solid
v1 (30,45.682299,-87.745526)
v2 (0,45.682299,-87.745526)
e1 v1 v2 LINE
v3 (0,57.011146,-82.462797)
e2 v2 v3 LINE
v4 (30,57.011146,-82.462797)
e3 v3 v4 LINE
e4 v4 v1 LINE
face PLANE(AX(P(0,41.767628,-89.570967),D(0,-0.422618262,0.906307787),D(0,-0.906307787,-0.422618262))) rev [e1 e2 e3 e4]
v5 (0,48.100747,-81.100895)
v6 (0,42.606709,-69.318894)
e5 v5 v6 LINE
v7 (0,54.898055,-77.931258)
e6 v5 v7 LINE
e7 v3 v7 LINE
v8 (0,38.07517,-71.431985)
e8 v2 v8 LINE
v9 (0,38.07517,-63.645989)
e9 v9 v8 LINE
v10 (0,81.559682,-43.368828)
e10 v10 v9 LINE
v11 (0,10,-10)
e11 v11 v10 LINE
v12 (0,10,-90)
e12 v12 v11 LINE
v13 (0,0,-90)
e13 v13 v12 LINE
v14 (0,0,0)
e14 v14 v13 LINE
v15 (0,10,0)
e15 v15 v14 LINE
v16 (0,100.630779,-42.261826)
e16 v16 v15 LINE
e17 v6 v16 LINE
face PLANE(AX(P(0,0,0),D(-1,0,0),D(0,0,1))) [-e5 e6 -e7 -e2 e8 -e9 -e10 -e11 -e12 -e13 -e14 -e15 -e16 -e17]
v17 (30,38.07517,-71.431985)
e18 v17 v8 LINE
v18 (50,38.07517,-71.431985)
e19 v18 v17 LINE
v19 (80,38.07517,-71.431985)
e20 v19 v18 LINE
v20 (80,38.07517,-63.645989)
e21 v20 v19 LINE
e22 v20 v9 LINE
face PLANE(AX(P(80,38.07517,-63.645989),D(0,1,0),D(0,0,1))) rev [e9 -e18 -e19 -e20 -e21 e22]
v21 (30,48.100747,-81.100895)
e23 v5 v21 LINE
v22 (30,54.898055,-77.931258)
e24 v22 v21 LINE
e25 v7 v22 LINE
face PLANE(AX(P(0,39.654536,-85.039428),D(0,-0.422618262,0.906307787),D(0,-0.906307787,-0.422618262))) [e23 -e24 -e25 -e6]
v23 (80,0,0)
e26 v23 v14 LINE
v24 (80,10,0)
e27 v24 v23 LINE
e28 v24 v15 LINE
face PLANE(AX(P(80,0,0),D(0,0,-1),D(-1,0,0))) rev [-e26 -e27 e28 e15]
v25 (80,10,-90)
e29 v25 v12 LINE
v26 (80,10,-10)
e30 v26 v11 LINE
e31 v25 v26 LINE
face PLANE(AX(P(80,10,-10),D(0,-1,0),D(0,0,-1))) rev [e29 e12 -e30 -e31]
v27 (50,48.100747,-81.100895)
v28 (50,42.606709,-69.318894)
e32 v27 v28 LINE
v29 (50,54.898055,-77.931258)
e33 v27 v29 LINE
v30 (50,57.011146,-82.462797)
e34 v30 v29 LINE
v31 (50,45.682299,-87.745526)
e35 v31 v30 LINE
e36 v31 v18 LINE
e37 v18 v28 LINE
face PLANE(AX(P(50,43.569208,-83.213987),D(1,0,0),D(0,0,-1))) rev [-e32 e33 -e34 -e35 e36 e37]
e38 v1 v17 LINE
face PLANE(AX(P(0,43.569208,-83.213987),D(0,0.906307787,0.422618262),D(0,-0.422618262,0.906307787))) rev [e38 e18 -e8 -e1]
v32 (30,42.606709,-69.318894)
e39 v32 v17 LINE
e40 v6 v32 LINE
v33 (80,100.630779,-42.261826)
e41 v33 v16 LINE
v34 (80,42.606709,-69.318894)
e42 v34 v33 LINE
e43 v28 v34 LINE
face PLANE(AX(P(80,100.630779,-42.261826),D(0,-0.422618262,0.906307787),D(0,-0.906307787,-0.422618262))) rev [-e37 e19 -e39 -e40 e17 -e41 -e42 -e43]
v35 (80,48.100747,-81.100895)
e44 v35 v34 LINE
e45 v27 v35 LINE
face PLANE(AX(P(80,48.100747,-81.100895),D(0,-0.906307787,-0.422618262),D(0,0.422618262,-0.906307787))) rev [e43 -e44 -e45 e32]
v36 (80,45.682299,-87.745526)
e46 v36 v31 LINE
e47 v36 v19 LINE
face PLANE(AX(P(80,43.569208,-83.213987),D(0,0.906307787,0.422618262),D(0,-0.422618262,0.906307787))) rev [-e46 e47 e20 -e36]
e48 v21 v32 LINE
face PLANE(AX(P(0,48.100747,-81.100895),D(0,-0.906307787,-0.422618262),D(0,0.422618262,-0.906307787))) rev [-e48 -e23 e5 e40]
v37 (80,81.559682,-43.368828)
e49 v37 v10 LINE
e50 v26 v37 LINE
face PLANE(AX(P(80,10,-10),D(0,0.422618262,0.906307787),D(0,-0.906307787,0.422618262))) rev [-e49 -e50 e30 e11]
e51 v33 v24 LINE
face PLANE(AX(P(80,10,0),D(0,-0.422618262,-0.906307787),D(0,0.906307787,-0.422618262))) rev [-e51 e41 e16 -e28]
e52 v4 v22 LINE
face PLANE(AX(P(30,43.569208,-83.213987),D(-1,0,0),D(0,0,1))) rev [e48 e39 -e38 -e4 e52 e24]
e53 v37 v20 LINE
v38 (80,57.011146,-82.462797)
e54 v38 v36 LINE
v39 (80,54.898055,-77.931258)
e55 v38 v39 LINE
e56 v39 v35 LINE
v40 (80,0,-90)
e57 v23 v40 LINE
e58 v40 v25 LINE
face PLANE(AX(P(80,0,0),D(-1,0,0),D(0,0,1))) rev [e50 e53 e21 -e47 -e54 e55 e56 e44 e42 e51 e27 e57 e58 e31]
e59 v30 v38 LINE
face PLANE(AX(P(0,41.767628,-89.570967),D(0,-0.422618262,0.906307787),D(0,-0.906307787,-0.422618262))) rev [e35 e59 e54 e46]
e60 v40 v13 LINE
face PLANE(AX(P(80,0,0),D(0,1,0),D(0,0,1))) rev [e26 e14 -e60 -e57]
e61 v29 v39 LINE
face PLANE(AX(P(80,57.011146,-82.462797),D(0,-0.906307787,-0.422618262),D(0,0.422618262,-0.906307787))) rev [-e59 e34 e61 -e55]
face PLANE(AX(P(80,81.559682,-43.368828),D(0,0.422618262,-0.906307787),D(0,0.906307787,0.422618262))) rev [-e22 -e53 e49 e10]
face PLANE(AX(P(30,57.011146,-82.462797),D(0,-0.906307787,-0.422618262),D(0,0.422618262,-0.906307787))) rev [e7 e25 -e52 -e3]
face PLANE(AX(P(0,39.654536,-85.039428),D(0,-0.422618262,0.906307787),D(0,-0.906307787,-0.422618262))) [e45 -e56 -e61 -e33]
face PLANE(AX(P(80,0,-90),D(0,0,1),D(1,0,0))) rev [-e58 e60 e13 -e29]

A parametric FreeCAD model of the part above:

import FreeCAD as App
import Part
import Sketcher
Q = App.Units.Quantity


def add_polygon(sketch, points):
    """Adds a closed chain of lines whose ends are joined by coincident constraints."""
    first, n = sketch.GeometryCount, len(points)
    for a, b in zip(points, points[1:] + points[:1]):
        sketch.addGeometry(Part.LineSegment(App.Vector(*a, 0), App.Vector(*b, 0)), False)
    for i in range(n):
        sketch.addConstraint(Sketcher.Constraint("Coincident", first + i, 2, first + (i + 1) % n, 1))

doc = App.newDocument("Part")
params = doc.addObject("Spreadsheet::Sheet", "Params")
for row, (alias, value) in enumerate([
    ("sketch1_width", "10 mm"),
    ("sketch1_height", "90 mm"),
    ("sketch1_height2", "80 mm"),
    ("sketch1_length", "100 mm"),
    ("sketch1_length2", "60 mm"),
    ("pad1_length", "80 mm"),
    ("sketch2_width", "30 mm"),
    ("sketch2_height", "5 mm"),
    ("pad2_length", "13 mm"),
    ("sketch3_width", "30 mm"),
    ("sketch3_height", "12.5 mm"),
    ("pad3_length", "5 mm"),
], start=1):
    params.set(f"A{row}", alias)
    params.set(f"B{row}", "=" + value)
    params.setAlias(f"B{row}", alias)

body = doc.addObject("PartDesign::Body", "Body")

sketch1 = body.newObject("Sketcher::SketchObject", "Sketch")
sketch1.AttachmentSupport = (doc.getObject("YZ_Plane"), [""])
sketch1.MapMode = "FlatFace"
add_polygon(sketch1, [(100.630779, -42.261826), (10, 0), (0, 0), (0, -90), (10, -90), (10, -10), (81.559682, -43.368828), (38.07517, -63.645989), (38.07517, -71.431985), (92.453637, -46.07489)])
sketch1.addConstraint([
    Sketcher.Constraint("Horizontal", 1),
    Sketcher.Constraint("Vertical", 2),
    Sketcher.Constraint("Horizontal", 3),
    Sketcher.Constraint("Vertical", 4),
    Sketcher.Constraint("Vertical", 7),
    Sketcher.Constraint("Coincident", 1, 2, -1, 1),
    Sketcher.Constraint("Parallel", 0, 5),
    Sketcher.Constraint("Parallel", 6, 8),
    Sketcher.Constraint("Parallel", 8, 9),
    Sketcher.Constraint("Vertical", 0, 2, 3, 2),
    Sketcher.Constraint("DistanceX", 1, 2, 1, 1, Q("10 mm")),
    Sketcher.Constraint("DistanceY", 2, 2, 2, 1, Q("90 mm")),
    Sketcher.Constraint("DistanceY", 4, 1, 4, 2, Q("80 mm")),
    Sketcher.Constraint("Angle", 0, Q("155 deg")),
    Sketcher.Constraint("Angle", 6, Q("-155 deg")),
    Sketcher.Constraint("Distance", 0, Q("100 mm")),
    Sketcher.Constraint("Distance", 8, Q("60 mm")),
    Sketcher.Constraint("DistanceY", 5, 2, 9, 2, Q("1.107002 mm")),
    Sketcher.Constraint("Distance", 6, Q("47.979851 mm")),
])
sketch1.setExpression("Constraints[20]", "Params.sketch1_width")
sketch1.setExpression("Constraints[21]", "Params.sketch1_height")
sketch1.setExpression("Constraints[22]", "Params.sketch1_height2")
sketch1.setExpression("Constraints[25]", "Params.sketch1_length")
sketch1.setExpression("Constraints[26]", "Params.sketch1_length2")
pad1 = body.newObject("PartDesign::Pad", "Pad")
pad1.Profile = sketch1
pad1.setExpression("Length", "Params.pad1_length")

sketch2 = body.newObject("Sketcher::SketchObject", "Sketch001")
sketch2.Placement = App.Placement(App.Vector(0, 34.160499, -73.257427), App.Rotation(App.Vector(-1, 0, 0), App.Vector(0, 0.906307787, 0.422618262), App.Vector(0, 0.422618262, -0.906307787), "ZXY"))
add_polygon(sketch2, [(-80, 9.319362), (-80, 4.319362), (-50, 4.319362), (-50, 9.319362)])
add_polygon(sketch2, [(-30, 9.319362), (-30, 4.319362), (0, 4.319362), (0, 9.319362)])
sketch2.addConstraint([
    Sketcher.Constraint("Vertical", 0),
    Sketcher.Constraint("Horizontal", 1),
    Sketcher.Constraint("Vertical", 2),
    Sketcher.Constraint("Horizontal", 3),
    Sketcher.Constraint("Vertical", 4),
    Sketcher.Constraint("Horizontal", 5),
    Sketcher.Constraint("Vertical", 6),
    Sketcher.Constraint("Horizontal", 7),
    Sketcher.Constraint("PointOnObject", 5, 2, -2),
    Sketcher.Constraint("Horizontal", 1, 2, 4, 2),
    Sketcher.Constraint("Horizontal", 3, 2, 6, 2),
    Sketcher.Constraint("Equal", 3, 5),
    Sketcher.Constraint("DistanceX", 1, 1, 1, 2, Q("30 mm")),
    Sketcher.Constraint("DistanceY", 0, 2, 0, 1, Q("5 mm")),
    Sketcher.Constraint("DistanceX", 0, 2, -1, 1, Q("80 mm")),
    Sketcher.Constraint("DistanceY", -1, 1, 0, 2, Q("4.319362 mm")),
])
sketch2.setExpression("Constraints[20]", "Params.sketch2_width")
sketch2.setExpression("Constraints[21]", "Params.sketch2_height")
pad2 = body.newObject("PartDesign::Pad", "Pad001")
pad2.Profile = sketch2
pad2.setExpression("Length", "Params.pad2_length")

sketch3 = body.newObject("Sketcher::SketchObject", "Sketch002")
sketch3.Placement = App.Placement(App.Vector(0, 39.654536, -85.039428), App.Rotation(App.Vector(-1, 0, 0), App.Vector(0, 0.906307787, 0.422618262), App.Vector(0, 0.422618262, -0.906307787), "ZXY"))
add_polygon(sketch3, [(-80, 16.819362), (-80, 4.319362), (-50, 4.319362), (-50, 16.819362)])
add_polygon(sketch3, [(-30, 16.819362), (-30, 4.319362), (0, 4.319362), (0, 16.819362)])
sketch3.addConstraint([
    Sketcher.Constraint("Vertical", 0),
    Sketcher.Constraint("Horizontal", 1),
    Sketcher.Constraint("Vertical", 2),
    Sketcher.Constraint("Horizontal", 3),
    Sketcher.Constraint("Vertical", 4),
    Sketcher.Constraint("Horizontal", 5),
    Sketcher.Constraint("Vertical", 6),
    Sketcher.Constraint("Horizontal", 7),
    Sketcher.Constraint("PointOnObject", 5, 2, -2),
    Sketcher.Constraint("Horizontal", 1, 2, 4, 2),
    Sketcher.Constraint("Horizontal", 3, 2, 6, 2),
    Sketcher.Constraint("Equal", 3, 5),
    Sketcher.Constraint("DistanceX", 1, 1, 1, 2, Q("30 mm")),
    Sketcher.Constraint("DistanceY", 0, 2, 0, 1, Q("12.5 mm")),
    Sketcher.Constraint("DistanceX", 0, 2, -1, 1, Q("80 mm")),
    Sketcher.Constraint("DistanceY", -1, 1, 0, 2, Q("4.319362 mm")),
])
sketch3.setExpression("Constraints[20]", "Params.sketch3_width")
sketch3.setExpression("Constraints[21]", "Params.sketch3_height")
pad3 = body.newObject("PartDesign::Pad", "Pad002")
pad3.Profile = sketch3
pad3.setExpression("Length", "Params.pad3_length")

doc.recompute()
